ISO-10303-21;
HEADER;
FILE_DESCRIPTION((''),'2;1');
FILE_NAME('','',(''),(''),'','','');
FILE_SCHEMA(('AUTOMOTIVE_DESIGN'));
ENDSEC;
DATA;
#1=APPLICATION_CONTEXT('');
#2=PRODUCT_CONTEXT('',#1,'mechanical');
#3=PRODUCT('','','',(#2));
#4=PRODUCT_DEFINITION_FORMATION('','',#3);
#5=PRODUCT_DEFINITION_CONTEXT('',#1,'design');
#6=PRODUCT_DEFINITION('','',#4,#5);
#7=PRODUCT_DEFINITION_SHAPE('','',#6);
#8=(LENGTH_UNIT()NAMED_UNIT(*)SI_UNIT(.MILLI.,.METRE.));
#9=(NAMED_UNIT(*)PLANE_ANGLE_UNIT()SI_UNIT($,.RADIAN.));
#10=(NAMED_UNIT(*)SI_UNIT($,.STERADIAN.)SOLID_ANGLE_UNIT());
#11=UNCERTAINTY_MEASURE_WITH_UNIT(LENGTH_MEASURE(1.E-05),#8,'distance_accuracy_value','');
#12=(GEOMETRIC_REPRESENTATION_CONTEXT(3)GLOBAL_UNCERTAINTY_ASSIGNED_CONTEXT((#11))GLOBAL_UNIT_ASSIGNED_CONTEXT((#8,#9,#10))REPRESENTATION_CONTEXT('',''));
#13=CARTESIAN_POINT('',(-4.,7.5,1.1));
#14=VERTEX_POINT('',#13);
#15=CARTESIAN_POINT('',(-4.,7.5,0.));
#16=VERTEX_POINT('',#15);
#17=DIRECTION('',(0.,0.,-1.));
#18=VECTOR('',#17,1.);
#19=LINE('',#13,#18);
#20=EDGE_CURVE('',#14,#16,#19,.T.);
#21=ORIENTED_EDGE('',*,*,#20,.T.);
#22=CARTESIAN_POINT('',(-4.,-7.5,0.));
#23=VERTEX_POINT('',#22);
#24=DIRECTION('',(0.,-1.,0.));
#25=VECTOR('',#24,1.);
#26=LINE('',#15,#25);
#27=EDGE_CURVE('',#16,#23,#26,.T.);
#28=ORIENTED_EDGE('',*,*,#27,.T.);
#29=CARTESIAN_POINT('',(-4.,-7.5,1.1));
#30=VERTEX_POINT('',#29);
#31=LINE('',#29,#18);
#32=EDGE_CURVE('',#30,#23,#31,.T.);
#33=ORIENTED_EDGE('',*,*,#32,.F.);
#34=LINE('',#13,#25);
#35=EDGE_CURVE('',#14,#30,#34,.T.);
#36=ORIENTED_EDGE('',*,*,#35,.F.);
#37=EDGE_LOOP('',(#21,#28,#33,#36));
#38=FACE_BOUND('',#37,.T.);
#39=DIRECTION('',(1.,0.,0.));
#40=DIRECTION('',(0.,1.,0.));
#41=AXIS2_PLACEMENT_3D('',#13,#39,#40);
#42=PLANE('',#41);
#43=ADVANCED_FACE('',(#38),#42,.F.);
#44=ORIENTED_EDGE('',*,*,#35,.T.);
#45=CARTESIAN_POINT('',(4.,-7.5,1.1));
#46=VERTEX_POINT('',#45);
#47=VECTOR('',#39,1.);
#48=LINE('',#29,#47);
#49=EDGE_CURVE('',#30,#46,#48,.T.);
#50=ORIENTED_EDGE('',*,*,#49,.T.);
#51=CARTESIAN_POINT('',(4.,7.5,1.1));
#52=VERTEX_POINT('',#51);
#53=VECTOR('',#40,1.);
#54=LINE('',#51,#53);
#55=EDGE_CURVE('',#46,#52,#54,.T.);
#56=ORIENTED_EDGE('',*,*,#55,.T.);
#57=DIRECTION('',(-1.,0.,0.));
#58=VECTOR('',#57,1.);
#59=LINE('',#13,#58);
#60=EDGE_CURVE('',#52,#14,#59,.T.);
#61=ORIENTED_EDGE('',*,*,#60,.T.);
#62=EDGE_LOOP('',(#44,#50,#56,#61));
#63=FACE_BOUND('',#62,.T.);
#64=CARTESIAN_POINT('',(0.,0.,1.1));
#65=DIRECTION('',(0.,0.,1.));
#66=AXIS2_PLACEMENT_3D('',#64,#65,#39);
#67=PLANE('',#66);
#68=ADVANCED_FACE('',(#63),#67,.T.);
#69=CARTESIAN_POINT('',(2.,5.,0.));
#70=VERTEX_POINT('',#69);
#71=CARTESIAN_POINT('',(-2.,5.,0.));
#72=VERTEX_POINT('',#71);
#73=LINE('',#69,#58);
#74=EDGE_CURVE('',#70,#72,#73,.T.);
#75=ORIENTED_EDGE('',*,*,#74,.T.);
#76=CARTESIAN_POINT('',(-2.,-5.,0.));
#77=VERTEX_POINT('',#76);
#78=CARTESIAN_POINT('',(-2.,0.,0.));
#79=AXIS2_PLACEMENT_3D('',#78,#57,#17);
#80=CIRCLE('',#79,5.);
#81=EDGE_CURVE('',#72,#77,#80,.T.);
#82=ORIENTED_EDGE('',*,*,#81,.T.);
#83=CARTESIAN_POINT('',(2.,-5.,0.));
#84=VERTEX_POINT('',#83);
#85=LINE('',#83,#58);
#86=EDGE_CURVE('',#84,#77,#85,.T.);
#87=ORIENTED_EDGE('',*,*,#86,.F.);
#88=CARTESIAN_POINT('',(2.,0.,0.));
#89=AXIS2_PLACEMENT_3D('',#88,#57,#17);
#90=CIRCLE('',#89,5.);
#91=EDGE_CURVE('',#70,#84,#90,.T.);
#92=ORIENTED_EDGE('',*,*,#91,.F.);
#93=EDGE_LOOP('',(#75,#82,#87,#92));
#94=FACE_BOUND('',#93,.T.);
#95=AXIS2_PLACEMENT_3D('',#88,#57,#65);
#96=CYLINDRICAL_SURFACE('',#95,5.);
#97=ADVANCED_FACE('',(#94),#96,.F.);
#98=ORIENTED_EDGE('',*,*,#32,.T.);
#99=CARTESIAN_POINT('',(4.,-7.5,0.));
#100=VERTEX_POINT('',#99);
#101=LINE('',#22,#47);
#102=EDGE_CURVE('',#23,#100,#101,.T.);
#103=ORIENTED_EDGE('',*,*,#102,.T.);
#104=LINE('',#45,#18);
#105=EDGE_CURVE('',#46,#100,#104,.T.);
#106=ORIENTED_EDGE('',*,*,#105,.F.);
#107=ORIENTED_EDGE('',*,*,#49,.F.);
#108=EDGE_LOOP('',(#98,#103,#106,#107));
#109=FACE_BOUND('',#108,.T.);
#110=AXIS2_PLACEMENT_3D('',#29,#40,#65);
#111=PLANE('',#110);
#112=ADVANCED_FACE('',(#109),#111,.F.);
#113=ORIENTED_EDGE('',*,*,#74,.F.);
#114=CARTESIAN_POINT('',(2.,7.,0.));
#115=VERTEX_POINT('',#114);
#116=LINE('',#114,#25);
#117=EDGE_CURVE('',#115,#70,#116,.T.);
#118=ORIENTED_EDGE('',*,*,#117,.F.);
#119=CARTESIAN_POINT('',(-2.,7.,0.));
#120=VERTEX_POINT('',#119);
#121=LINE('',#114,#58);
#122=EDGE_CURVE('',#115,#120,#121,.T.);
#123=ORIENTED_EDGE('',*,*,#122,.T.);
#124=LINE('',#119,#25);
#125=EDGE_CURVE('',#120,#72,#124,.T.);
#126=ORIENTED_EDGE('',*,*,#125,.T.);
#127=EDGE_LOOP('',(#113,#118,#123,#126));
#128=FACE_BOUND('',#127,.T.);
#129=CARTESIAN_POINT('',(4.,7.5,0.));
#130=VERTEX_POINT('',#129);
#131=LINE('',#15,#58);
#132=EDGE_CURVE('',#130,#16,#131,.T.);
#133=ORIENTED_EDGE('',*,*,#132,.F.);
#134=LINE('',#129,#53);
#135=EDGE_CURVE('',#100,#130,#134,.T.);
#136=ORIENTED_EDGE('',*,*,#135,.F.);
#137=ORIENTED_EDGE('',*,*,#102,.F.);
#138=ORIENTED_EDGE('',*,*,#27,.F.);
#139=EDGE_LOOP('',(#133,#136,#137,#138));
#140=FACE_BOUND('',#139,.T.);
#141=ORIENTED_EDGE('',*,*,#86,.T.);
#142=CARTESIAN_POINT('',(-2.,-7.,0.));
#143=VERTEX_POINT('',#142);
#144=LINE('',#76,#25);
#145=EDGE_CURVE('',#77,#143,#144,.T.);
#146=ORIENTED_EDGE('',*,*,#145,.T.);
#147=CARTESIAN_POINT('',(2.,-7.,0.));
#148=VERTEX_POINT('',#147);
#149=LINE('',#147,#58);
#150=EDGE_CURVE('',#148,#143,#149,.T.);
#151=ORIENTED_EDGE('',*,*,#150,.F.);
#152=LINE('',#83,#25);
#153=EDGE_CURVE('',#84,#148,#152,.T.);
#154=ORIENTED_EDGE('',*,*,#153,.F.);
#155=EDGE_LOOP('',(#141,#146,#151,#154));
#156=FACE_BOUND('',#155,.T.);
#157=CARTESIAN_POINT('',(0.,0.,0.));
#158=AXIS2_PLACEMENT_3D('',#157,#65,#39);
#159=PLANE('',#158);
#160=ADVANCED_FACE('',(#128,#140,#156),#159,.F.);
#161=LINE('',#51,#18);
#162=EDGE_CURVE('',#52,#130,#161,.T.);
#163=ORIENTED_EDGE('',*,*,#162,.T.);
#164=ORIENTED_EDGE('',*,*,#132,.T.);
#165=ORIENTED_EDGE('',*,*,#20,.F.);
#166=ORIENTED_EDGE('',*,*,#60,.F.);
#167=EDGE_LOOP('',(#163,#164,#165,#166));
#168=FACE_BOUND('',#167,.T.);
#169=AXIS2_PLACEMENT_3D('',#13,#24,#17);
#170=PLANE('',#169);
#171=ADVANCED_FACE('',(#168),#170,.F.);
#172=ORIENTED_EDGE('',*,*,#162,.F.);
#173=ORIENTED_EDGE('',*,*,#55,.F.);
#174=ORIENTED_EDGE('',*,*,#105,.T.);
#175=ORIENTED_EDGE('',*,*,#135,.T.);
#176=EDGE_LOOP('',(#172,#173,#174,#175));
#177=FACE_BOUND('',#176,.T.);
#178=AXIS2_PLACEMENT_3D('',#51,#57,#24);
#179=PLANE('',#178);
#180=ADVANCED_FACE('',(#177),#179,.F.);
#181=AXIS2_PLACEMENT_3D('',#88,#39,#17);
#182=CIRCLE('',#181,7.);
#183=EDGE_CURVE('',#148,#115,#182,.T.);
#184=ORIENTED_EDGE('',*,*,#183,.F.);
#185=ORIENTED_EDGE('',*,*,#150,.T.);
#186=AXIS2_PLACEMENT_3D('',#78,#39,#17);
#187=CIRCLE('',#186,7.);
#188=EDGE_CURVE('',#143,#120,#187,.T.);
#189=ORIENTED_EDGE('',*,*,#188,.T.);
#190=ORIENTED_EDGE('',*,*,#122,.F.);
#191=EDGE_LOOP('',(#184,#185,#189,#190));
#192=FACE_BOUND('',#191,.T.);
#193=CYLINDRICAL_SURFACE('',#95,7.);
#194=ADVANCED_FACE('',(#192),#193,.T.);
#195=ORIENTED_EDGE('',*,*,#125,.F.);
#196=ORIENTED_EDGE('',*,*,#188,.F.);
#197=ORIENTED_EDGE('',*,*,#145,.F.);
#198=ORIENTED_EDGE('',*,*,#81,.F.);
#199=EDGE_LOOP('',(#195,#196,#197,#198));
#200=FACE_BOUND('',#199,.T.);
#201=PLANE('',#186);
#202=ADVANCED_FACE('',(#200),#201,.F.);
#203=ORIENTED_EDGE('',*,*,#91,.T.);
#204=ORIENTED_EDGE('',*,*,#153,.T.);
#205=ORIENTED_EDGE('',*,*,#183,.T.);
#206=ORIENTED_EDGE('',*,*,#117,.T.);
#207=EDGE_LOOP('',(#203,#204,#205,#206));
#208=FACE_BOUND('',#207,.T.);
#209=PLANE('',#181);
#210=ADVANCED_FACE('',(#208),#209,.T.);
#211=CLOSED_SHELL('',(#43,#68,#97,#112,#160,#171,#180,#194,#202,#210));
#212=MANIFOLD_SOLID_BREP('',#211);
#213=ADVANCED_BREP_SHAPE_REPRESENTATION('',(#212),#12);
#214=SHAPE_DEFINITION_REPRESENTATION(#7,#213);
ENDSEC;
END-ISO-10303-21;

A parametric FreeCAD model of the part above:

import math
import FreeCAD as App
import Part
import Sketcher
from FreeCAD import Vector
Q = App.Units.Quantity

doc = App.newDocument("Part")
params = doc.addObject("Spreadsheet::Sheet", "Params")
for row, (alias, value) in enumerate([
    ("sketch1_width", "8 mm"),
    ("sketch1_height", "15 mm"),
    ("pad1_length", "1.1 mm"),
    ("sketch2_radius", "5 mm"),
    ("sketch2_radius2", "7 mm"),
    ("pad2_length", "4 mm"),
], start=1):
    params.set(f"A{row}", alias)
    params.set(f"B{row}", "=" + value)
    params.setAlias(f"B{row}", alias)

body = doc.addObject("PartDesign::Body", "Body")

# Sketch on XY plane
sketch1 = doc.addObject("Sketcher::SketchObject", "Sketch")
body.addObject(sketch1)
sketch1.AttachmentSupport = (doc.XY_Plane, [""])
sketch1.MapMode = "FlatFace"
sketch1.addGeometry([
    Part.LineSegment(Vector(-4, 7.5, 0), Vector(-4, -7.5, 0)),
    Part.LineSegment(Vector(-4, -7.5, 0), Vector(4, -7.5, 0)),
    Part.LineSegment(Vector(4, -7.5, 0), Vector(4, 7.5, 0)),
    Part.LineSegment(Vector(4, 7.5, 0), Vector(-4, 7.5, 0)),
], False)
sketch1.addConstraint([
    Sketcher.Constraint("Coincident", 0, 2, 1, 1),
    Sketcher.Constraint("Coincident", 1, 2, 2, 1),
    Sketcher.Constraint("Coincident", 2, 2, 3, 1),
    Sketcher.Constraint("Coincident", 3, 2, 0, 1),
    Sketcher.Constraint("Vertical", 0),
    Sketcher.Constraint("Horizontal", 1),
    Sketcher.Constraint("Vertical", 2),
    Sketcher.Constraint("Horizontal", 3),
    Sketcher.Constraint("Symmetric", 0, 2, 2, 2, -1, 1),
    Sketcher.Constraint("DistanceX", 1, 1, 1, 2, Q("8 mm")),
    Sketcher.Constraint("DistanceY", 0, 2, 0, 1, Q("15 mm")),
])
sketch1.setExpression("Constraints[9]", "Params.sketch1_width")
sketch1.setExpression("Constraints[10]", "Params.sketch1_height")
pad1 = doc.addObject("PartDesign::Pad", "Pad")
body.addObject(pad1)
pad1.Profile = sketch1
pad1.setExpression("Length", "Params.pad1_length")

# Sketch on YZ plane
sketch2 = doc.addObject("Sketcher::SketchObject", "Sketch001")
body.addObject(sketch2)
sketch2.AttachmentSupport = (doc.YZ_Plane, [""])
sketch2.MapMode = "FlatFace"
sketch2.addGeometry([
    Part.LineSegment(Vector(7, 0, 0), Vector(5, 0, 0)),
    Part.ArcOfCircle(Part.Circle(Vector(0, 0, 0), Vector(0, 0, 1), 5), math.radians(180), math.radians(360)),
    Part.LineSegment(Vector(-5, 0, 0), Vector(-7, 0, 0)),
    Part.ArcOfCircle(Part.Circle(Vector(0, 0, 0), Vector(0, 0, 1), 7), math.radians(180), math.radians(360)),
], False)
sketch2.addConstraint([
    Sketcher.Constraint("Coincident", 0, 2, 1, 2),
    Sketcher.Constraint("Coincident", 1, 1, 2, 1),
    Sketcher.Constraint("Coincident", 2, 2, 3, 1),
    Sketcher.Constraint("Coincident", 3, 2, 0, 1),
    Sketcher.Constraint("Horizontal", 0),
    Sketcher.Constraint("Horizontal", 2),
    Sketcher.Constraint("Coincident", 1, 3, -1, 1),
    Sketcher.Constraint("Coincident", 3, 3, -1, 1),
    Sketcher.Constraint("PointOnObject", 0, 2, -1),
    Sketcher.Constraint("PointOnObject", 1, 1, -1),
    Sketcher.Constraint("Radius", 1, Q("5 mm")),
    Sketcher.Constraint("Radius", 3, Q("7 mm")),
])
sketch2.setExpression("Constraints[10]", "Params.sketch2_radius")
sketch2.setExpression("Constraints[11]", "Params.sketch2_radius2")
pad2 = doc.addObject("PartDesign::Pad", "Pad001")
body.addObject(pad2)
pad2.Profile = sketch2
pad2.setExpression("Length", "Params.pad2_length")
pad2.Midplane = True

doc.recompute()
